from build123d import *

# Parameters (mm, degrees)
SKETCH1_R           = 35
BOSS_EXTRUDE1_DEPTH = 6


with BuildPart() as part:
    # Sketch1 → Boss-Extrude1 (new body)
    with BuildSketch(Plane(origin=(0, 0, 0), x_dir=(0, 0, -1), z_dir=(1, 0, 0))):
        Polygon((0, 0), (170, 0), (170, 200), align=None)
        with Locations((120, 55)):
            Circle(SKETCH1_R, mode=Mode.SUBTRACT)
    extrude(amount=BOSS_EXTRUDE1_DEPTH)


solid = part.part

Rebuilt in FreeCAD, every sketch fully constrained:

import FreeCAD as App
import Part
import Sketcher
Q = App.Units.Quantity

doc = App.newDocument("Part")
body = doc.addObject("PartDesign::Body", "Body")

# Sketch on YZ plane
sketch1 = doc.addObject("Sketcher::SketchObject", "Sketch")
body.addObject(sketch1)
sketch1.AttachmentSupport = (doc.YZ_Plane, [""])
sketch1.MapMode = "FlatFace"
sketch1.addGeometry([
    Part.LineSegment(App.Vector(0, 0, 0), App.Vector(0, -170, 0)),
    Part.LineSegment(App.Vector(0, -170, 0), App.Vector(200, -170, 0)),
    Part.LineSegment(App.Vector(200, -170, 0), App.Vector(0, 0, 0)),
    Part.Circle(App.Vector(55, -120, 0), App.Vector(0, 0, 1), 35),
], False)
sketch1.addConstraint([
    Sketcher.Constraint("Coincident", 0, 2, 1, 1),
    Sketcher.Constraint("Coincident", 1, 2, 2, 1),
    Sketcher.Constraint("Coincident", 2, 2, 0, 1),
    Sketcher.Constraint("Vertical", 0),
    Sketcher.Constraint("Horizontal", 1),
    Sketcher.Constraint("Coincident", 2, 2, -1, 1),
    Sketcher.Constraint("Diameter", 3, Q("70 mm")),
    Sketcher.Constraint("DistanceX", 1, 1, 1, 2, Q("200 mm")),
    Sketcher.Constraint("DistanceY", 0, 2, 0, 1, Q("170 mm")),
    Sketcher.Constraint("DistanceX", -1, 1, 3, 3, Q("55 mm")),
    Sketcher.Constraint("DistanceY", 3, 3, -1, 1, Q("120 mm")),
])
pad1 = doc.addObject("PartDesign::Pad", "Pad")
body.addObject(pad1)
pad1.Profile = sketch1
pad1.Length = 6

doc.recompute()
